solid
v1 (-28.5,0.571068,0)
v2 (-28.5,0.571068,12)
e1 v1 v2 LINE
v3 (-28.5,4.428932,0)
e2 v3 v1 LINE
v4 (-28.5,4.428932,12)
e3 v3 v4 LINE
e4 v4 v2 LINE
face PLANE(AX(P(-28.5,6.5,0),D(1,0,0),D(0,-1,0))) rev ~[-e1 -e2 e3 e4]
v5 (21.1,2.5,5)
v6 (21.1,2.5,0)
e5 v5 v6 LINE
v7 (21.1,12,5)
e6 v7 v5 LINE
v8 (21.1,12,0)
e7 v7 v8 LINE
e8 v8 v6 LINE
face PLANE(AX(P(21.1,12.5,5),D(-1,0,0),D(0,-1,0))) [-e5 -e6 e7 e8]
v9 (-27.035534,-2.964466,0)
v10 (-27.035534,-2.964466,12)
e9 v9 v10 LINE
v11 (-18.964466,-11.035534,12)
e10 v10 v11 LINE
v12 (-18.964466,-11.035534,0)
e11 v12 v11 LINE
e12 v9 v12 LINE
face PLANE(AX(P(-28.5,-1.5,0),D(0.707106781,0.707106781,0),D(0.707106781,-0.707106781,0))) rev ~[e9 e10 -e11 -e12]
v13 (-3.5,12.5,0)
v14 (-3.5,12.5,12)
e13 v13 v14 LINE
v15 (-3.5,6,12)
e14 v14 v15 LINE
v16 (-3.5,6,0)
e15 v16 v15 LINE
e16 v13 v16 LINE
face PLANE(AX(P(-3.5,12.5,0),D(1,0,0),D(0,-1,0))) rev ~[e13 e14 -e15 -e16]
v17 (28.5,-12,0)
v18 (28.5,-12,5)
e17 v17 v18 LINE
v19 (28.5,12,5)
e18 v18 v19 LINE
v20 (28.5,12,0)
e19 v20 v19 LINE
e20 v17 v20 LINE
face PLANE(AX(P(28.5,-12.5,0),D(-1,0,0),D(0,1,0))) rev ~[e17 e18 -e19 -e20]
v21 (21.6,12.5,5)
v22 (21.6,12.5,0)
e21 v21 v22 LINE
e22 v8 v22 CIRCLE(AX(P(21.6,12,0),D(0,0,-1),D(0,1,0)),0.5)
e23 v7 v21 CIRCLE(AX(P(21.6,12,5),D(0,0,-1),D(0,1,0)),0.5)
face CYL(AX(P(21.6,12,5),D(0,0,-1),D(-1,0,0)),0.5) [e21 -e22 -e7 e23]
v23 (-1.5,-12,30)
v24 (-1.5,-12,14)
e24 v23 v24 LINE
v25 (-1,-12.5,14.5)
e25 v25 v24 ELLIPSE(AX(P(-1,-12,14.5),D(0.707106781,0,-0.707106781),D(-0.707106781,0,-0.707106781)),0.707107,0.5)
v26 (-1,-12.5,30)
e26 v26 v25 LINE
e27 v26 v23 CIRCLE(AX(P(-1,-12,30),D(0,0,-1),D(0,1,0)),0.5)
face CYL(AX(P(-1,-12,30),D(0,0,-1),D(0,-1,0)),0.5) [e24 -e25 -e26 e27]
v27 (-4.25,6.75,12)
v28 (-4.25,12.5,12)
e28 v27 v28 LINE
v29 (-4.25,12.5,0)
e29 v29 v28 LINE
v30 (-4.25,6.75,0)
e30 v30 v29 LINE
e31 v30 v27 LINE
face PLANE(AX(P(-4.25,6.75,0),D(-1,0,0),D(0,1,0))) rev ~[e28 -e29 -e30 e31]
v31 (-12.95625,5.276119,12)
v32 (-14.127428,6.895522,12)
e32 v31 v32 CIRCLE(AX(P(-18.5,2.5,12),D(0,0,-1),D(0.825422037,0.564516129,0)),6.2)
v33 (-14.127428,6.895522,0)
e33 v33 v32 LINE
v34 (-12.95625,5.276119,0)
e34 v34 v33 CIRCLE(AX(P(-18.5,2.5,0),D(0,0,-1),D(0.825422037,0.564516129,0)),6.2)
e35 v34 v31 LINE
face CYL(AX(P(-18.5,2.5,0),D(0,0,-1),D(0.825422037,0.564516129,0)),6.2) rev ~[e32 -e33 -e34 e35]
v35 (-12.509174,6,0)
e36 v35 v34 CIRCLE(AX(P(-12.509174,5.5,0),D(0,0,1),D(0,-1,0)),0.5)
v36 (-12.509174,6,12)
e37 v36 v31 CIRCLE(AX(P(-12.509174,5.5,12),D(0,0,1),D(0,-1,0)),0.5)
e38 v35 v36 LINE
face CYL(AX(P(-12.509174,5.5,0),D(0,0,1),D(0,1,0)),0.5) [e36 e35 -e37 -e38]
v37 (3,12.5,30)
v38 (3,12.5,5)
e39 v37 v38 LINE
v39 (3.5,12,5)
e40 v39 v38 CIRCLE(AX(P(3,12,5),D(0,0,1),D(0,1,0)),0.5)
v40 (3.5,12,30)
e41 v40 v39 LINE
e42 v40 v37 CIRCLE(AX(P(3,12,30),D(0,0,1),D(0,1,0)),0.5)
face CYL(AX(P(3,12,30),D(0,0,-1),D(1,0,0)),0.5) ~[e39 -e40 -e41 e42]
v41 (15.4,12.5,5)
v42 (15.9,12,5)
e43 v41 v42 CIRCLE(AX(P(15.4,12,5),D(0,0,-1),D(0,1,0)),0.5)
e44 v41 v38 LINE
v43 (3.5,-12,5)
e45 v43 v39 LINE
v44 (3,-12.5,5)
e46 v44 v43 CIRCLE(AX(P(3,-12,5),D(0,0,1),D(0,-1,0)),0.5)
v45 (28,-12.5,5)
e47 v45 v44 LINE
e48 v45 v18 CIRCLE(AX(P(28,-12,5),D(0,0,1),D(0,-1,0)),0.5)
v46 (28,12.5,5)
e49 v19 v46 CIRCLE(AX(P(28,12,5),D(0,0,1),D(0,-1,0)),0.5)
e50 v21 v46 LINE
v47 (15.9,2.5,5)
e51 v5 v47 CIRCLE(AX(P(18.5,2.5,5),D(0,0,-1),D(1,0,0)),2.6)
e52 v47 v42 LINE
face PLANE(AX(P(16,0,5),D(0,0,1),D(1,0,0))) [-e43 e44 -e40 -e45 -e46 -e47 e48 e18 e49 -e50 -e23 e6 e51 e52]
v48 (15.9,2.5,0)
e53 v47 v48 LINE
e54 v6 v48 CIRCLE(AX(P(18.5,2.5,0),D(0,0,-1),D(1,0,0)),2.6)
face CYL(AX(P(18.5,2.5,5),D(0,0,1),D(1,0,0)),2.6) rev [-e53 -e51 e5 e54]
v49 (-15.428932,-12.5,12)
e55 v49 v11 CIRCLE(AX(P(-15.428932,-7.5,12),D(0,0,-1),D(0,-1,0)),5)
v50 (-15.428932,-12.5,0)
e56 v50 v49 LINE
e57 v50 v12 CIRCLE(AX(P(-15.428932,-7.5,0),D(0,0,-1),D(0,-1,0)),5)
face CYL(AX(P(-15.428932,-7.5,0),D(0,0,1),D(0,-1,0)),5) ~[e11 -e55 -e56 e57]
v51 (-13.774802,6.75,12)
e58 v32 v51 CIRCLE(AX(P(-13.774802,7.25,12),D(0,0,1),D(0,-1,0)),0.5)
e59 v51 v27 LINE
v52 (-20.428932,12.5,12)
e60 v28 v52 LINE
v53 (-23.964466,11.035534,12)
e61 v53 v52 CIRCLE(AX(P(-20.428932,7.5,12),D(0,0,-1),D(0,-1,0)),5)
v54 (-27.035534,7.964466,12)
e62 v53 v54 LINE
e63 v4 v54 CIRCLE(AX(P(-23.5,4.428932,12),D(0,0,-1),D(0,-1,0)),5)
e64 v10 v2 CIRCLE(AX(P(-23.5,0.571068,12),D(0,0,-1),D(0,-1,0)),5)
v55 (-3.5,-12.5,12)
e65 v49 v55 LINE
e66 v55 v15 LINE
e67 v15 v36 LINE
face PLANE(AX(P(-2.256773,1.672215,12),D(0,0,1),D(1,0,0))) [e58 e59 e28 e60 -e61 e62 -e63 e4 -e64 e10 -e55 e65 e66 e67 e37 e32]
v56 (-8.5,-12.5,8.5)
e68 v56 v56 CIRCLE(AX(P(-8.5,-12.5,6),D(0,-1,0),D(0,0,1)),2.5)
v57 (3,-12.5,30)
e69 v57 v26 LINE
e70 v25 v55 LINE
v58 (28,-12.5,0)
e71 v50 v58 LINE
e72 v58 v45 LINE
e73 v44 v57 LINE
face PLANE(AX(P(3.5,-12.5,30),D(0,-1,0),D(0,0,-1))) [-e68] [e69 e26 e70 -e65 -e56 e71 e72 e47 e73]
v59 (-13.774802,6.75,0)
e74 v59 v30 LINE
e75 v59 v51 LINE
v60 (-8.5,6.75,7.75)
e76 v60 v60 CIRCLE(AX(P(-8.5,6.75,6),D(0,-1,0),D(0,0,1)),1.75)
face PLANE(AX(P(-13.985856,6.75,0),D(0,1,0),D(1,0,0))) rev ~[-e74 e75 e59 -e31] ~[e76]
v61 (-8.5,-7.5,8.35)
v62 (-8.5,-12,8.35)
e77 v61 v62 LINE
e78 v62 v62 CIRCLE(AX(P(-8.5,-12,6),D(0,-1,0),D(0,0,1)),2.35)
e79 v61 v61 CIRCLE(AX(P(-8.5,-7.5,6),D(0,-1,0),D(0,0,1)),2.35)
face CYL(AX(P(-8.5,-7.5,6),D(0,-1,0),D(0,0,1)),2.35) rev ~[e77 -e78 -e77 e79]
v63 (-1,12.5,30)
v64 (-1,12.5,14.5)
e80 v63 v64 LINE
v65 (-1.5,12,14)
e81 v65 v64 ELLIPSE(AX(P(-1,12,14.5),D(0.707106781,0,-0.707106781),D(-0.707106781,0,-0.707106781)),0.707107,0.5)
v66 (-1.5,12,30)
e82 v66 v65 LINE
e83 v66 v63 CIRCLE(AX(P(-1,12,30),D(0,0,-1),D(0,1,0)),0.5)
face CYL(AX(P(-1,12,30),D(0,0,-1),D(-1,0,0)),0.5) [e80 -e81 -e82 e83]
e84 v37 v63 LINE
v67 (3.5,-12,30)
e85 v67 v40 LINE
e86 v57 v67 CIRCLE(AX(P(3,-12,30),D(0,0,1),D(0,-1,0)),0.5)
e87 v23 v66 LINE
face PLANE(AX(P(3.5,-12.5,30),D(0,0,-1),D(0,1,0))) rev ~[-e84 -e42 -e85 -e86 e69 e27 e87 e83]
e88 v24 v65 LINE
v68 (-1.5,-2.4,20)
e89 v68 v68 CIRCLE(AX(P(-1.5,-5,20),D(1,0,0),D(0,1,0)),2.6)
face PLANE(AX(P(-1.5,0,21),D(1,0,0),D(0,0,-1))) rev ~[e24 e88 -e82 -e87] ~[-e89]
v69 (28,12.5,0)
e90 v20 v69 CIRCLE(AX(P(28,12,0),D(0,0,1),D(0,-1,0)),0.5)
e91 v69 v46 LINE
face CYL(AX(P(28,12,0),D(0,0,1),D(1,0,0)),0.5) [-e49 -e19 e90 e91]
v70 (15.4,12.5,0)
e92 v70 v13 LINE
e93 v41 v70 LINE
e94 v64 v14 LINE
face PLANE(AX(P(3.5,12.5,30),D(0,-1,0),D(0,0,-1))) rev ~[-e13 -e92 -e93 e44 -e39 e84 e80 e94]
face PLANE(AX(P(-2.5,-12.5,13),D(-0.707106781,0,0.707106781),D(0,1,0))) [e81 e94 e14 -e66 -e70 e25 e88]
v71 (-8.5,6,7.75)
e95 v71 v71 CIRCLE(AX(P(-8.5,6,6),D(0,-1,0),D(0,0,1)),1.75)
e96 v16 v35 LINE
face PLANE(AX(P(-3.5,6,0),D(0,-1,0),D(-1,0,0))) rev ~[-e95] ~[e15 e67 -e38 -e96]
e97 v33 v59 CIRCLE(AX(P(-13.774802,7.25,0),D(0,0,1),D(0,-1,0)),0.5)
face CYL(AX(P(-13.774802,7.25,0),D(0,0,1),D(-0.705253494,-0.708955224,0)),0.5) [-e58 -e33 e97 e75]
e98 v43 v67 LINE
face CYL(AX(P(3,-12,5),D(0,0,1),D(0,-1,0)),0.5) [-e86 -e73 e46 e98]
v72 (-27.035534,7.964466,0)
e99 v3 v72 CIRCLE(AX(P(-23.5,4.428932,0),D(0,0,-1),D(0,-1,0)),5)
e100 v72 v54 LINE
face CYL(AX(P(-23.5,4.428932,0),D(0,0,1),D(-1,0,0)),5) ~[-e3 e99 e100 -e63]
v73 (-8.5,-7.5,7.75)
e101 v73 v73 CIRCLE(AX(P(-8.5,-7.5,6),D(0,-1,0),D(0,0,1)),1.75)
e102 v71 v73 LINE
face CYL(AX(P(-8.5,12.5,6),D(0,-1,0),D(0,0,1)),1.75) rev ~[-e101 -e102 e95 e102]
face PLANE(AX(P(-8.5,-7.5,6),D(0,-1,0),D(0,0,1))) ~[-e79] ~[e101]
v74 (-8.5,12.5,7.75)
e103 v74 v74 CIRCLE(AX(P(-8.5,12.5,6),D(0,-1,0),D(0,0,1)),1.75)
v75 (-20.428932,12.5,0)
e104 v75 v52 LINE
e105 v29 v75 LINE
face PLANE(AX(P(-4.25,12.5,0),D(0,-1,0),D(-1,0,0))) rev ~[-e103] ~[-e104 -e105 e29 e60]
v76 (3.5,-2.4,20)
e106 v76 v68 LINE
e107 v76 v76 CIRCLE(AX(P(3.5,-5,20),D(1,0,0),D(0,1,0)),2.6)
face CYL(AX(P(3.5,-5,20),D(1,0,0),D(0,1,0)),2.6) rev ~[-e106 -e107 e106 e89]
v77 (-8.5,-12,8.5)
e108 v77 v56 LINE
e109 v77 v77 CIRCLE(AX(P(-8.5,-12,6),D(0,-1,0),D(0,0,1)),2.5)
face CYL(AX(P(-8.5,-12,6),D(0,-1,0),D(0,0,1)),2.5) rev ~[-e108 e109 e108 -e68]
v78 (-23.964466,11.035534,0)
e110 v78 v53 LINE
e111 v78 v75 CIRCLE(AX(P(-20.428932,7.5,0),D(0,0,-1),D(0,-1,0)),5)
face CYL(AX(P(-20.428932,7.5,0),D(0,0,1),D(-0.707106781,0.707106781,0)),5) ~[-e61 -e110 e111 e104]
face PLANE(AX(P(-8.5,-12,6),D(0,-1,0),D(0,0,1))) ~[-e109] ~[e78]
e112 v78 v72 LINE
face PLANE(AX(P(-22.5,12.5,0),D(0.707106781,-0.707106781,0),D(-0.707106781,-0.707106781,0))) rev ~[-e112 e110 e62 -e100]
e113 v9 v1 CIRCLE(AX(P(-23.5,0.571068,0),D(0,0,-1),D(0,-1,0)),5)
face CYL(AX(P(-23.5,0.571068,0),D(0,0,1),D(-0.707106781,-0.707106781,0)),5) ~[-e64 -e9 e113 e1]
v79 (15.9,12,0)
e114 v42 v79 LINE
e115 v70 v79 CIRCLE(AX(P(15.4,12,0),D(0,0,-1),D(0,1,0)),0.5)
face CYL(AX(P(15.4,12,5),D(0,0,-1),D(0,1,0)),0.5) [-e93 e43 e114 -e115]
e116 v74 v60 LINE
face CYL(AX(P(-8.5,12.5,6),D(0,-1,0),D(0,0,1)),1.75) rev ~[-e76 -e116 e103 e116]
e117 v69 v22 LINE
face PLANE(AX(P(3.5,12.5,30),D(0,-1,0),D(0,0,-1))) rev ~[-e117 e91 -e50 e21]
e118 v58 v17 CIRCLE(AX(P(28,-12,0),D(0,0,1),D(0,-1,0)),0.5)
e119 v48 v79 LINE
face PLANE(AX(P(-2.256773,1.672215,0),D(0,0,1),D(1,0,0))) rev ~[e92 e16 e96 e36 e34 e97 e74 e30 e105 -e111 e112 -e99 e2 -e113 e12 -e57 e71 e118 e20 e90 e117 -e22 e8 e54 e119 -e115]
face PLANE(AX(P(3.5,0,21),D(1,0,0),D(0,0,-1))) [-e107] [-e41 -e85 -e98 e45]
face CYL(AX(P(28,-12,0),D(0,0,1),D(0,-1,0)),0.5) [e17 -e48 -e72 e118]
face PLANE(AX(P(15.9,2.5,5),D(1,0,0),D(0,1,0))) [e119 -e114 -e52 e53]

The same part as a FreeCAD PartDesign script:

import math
import FreeCAD as App
import Part
import Sketcher
from FreeCAD import Vector
Q = App.Units.Quantity


def edges_at(feature, points):
    """Names of the edges that pass closest to the given points."""
    edges = feature.Shape.Edges
    near = lambda p: min(range(len(edges)), key=lambda i: edges[i].distToShape(Part.Vertex(*p))[0])
    return sorted({f"Edge{near(p) + 1}" for p in points})


def add_polygon(sketch, points):
    """Adds a closed chain of lines whose ends are joined by coincident constraints."""
    first, n = sketch.GeometryCount, len(points)
    for a, b in zip(points, points[1:] + points[:1]):
        sketch.addGeometry(Part.LineSegment(App.Vector(*a, 0), App.Vector(*b, 0)), False)
    for i in range(n):
        sketch.addConstraint(Sketcher.Constraint("Coincident", first + i, 2, first + (i + 1) % n, 1))

doc = App.newDocument("Part")
params = doc.addObject("Spreadsheet::Sheet", "Params")
for row, (alias, value) in enumerate([
    ("sketch1_radius", "6.2 mm"),
    ("sketch1_width", "46 mm"),
    ("sketch1_width2", "32 mm"),
    ("sketch1_height", "8 mm"),
    ("sketch1_height2", "25 mm"),
    ("pad1_length", "12 mm"),
    ("sketch2_width", "25 mm"),
    ("pocket1_length", "7 mm"),
    ("sketch3_diameter", "5.2 mm"),
    ("sketch3_width", "25 mm"),
    ("sketch3_height", "18 mm"),
    ("pad2_length", "5 mm"),
    ("chamfer_size", "2 mm"),
    ("sketch4_radius", "2.6 mm"),
    ("sketch4_height", "10 mm"),
    ("pocket2_length", "5 mm"),
    ("fillet_radius", "5 mm"),
    ("fillet2_radius", "0.5 mm"),
    ("sketch5_height", "25 mm"),
    ("sketch5_height2", "20 mm"),
    ("sketch5_width", "2.5 mm"),
    ("sketch5_width2", "0.6 mm"),
    ("sketch5_height3", "0.5 mm"),
    ("groove_angle", "360 deg"),
], start=1):
    params.set(f"A{row}", alias)
    params.set(f"B{row}", "=" + value)
    params.setAlias(f"B{row}", alias)

body = doc.addObject("PartDesign::Body", "Body")

sketch1 = doc.addObject("Sketcher::SketchObject", "Sketch")
body.addObject(sketch1)
sketch1.AttachmentSupport = (doc.XY_Plane, [""])
sketch1.MapMode = "FlatFace"
sketch1.addGeometry([
    Part.LineSegment(Vector(-22.5, 12.5, 0), Vector(-28.5, 6.5, 0)),
    Part.LineSegment(Vector(-28.5, 6.5, 0), Vector(-28.5, -1.5, 0)),
    Part.LineSegment(Vector(-28.5, -1.5, 0), Vector(-17.5, -12.5, 0)),
    Part.LineSegment(Vector(-17.5, -12.5, 0), Vector(28.5, -12.5, 0)),
    Part.LineSegment(Vector(28.5, -12.5, 0), Vector(28.5, 12.5, 0)),
    Part.LineSegment(Vector(28.5, 12.5, 0), Vector(-3.5, 12.5, 0)),
    Part.LineSegment(Vector(-3.5, 12.5, 0), Vector(-3.5, 6, 0)),
    Part.LineSegment(Vector(-3.5, 6, 0), Vector(-13.382383, 6, 0)),
    Part.ArcOfCircle(Part.Circle(Vector(-18.5, 2.5, 0), Vector(0, 0, 1), 6.2), math.radians(43.273673), math.radians(394.368697)),
    Part.LineSegment(Vector(-13.985856, 6.75, 0), Vector(-4.25, 6.75, 0)),
    Part.LineSegment(Vector(-4.25, 6.75, 0), Vector(-4.25, 12.5, 0)),
    Part.LineSegment(Vector(-4.25, 12.5, 0), Vector(-22.5, 12.5, 0)),
], False)
sketch1.addConstraint([
    Sketcher.Constraint("Coincident", 0, 2, 1, 1),
    Sketcher.Constraint("Coincident", 1, 2, 2, 1),
    Sketcher.Constraint("Coincident", 2, 2, 3, 1),
    Sketcher.Constraint("Coincident", 3, 2, 4, 1),
    Sketcher.Constraint("Coincident", 4, 2, 5, 1),
    Sketcher.Constraint("Coincident", 5, 2, 6, 1),
    Sketcher.Constraint("Coincident", 6, 2, 7, 1),
    Sketcher.Constraint("Coincident", 7, 2, 8, 2),
    Sketcher.Constraint("Coincident", 8, 1, 9, 1),
    Sketcher.Constraint("Coincident", 9, 2, 10, 1),
    Sketcher.Constraint("Coincident", 10, 2, 11, 1),
    Sketcher.Constraint("Coincident", 11, 2, 0, 1),
    Sketcher.Constraint("Vertical", 1),
    Sketcher.Constraint("Horizontal", 3),
    Sketcher.Constraint("Vertical", 4),
    Sketcher.Constraint("Horizontal", 5),
    Sketcher.Constraint("Vertical", 6),
    Sketcher.Constraint("Horizontal", 7),
    Sketcher.Constraint("Horizontal", 9),
    Sketcher.Constraint("Vertical", 10),
    Sketcher.Constraint("Horizontal", 11),
    Sketcher.Constraint("Perpendicular", 0, 2),
    Sketcher.Constraint("Horizontal", 5, 2, 10, 2),
    Sketcher.Constraint("Radius", 8, Q("6.2 mm")),
    Sketcher.Constraint("DistanceX", 3, 1, 3, 2, Q("46 mm")),
    Sketcher.Constraint("DistanceX", 5, 2, 5, 1, Q("32 mm")),
    Sketcher.Constraint("DistanceY", 1, 2, 1, 1, Q("8 mm")),
    Sketcher.Constraint("DistanceY", 4, 1, 4, 2, Q("25 mm")),
    Sketcher.Constraint("Angle", 0, Q("-135 deg")),
    Sketcher.Constraint("DistanceY", 6, 2, 6, 1, Q("6.5 mm")),
    Sketcher.Constraint("DistanceY", -1, 1, 6, 2, Q("6 mm")),
    Sketcher.Constraint("DistanceX", 0, 2, 8, 3, Q("10 mm")),
    Sketcher.Constraint("DistanceY", 8, 3, 0, 2, Q("4 mm")),
    Sketcher.Constraint("DistanceX", 8, 3, 2, 2, Q("1 mm")),
    Sketcher.Constraint("DistanceX", 11, 2, 11, 1, Q("18.25 mm")),
    Sketcher.Constraint("DistanceY", 10, 1, 10, 2, Q("5.75 mm")),
    Sketcher.Constraint("DistanceX", 8, 3, -1, 1, Q("18.5 mm")),
])
sketch1.setExpression("Constraints[23]", "Params.sketch1_radius")
sketch1.setExpression("Constraints[24]", "Params.sketch1_width")
sketch1.setExpression("Constraints[25]", "Params.sketch1_width2")
sketch1.setExpression("Constraints[26]", "Params.sketch1_height")
sketch1.setExpression("Constraints[27]", "Params.sketch1_height2")
pad1 = doc.addObject("PartDesign::Pad", "Pad")
body.addObject(pad1)
pad1.Profile = sketch1
pad1.setExpression("Length", "Params.pad1_length")

sketch2 = doc.addObject("Sketcher::SketchObject", "Sketch001")
body.addObject(sketch2)
sketch2.AttachmentSupport = (doc.XY_Plane, [""])
sketch2.MapMode = "FlatFace"
sketch2.AttachmentOffset = App.Placement(Vector(0, 0, 12), App.Rotation())
add_polygon(sketch2, [(3.5, 12.5), (3.5, -12.5), (28.5, -12.5), (28.5, 12.5)])
sketch2.addConstraint([
    Sketcher.Constraint("Vertical", 0),
    Sketcher.Constraint("Horizontal", 1),
    Sketcher.Constraint("Vertical", 2),
    Sketcher.Constraint("Horizontal", 3),
    Sketcher.Constraint("Equal", 3, 0),
    Sketcher.Constraint("DistanceX", 1, 1, 1, 2, Q("25 mm")),
    Sketcher.Constraint("DistanceX", -1, 1, 0, 2, Q("3.5 mm")),
    Sketcher.Constraint("DistanceY", 0, 2, -1, 1, Q("12.5 mm")),
])
sketch2.setExpression("Constraints[9]", "Params.sketch2_width")
pocket1 = doc.addObject("PartDesign::Pocket", "Pocket")
body.addObject(pocket1)
pocket1.Profile = sketch2
pocket1.setExpression("Length", "Params.pocket1_length")

sketch3 = doc.addObject("Sketcher::SketchObject", "Sketch002")
body.addObject(sketch3)
sketch3.AttachmentSupport = (doc.YZ_Plane, [""])
sketch3.MapMode = "FlatFace"
sketch3.AttachmentOffset = App.Placement(Vector(0, 0, 3.5), App.Rotation())
add_polygon(sketch3, [(12.5, 30), (-12.5, 30), (-12.5, 12), (12.5, 12)])
sketch3.addGeometry(Part.Circle(Vector(-5, 20, 0), Vector(0, 0, 1), 2.6), False)
sketch3.addConstraint([
    Sketcher.Constraint("Horizontal", 0),
    Sketcher.Constraint("Vertical", 1),
    Sketcher.Constraint("Horizontal", 2),
    Sketcher.Constraint("Vertical", 3),
    Sketcher.Constraint("Diameter", 4, Q("5.2 mm")),
    Sketcher.Constraint("DistanceX", 0, 2, 0, 1, Q("25 mm")),
    Sketcher.Constraint("DistanceY", 1, 2, 1, 1, Q("18 mm")),
    Sketcher.Constraint("DistanceX", 4, 3, -1, 1, Q("5 mm")),
    Sketcher.Constraint("DistanceY", -1, 1, 4, 3, Q("20 mm")),
    Sketcher.Constraint("DistanceY", -1, 1, 0, 2, Q("30 mm")),
    Sketcher.Constraint("DistanceX", 0, 2, -1, 1, Q("12.5 mm")),
])
sketch3.setExpression("Constraints[8]", "Params.sketch3_diameter")
sketch3.setExpression("Constraints[9]", "Params.sketch3_width")
sketch3.setExpression("Constraints[10]", "Params.sketch3_height")
pad2 = doc.addObject("PartDesign::Pad", "Pad001")
body.addObject(pad2)
pad2.Profile = sketch3
pad2.setExpression("Length", "Params.pad2_length")
pad2.Reversed = True
doc.recompute()

chamfer = doc.addObject("PartDesign::Chamfer", "Chamfer")
body.addObject(chamfer)
chamfer.Base = (pad2, edges_at(pad2, [(-1.5, 0, 12)]))
chamfer.setExpression("Size", "Params.chamfer_size")

sketch4 = doc.addObject("Sketcher::SketchObject", "Sketch003")
body.addObject(sketch4)
sketch4.AttachmentSupport = (doc.XY_Plane, [""])
sketch4.MapMode = "FlatFace"
sketch4.AttachmentOffset = App.Placement(Vector(0, 0, 5), App.Rotation())
sketch4.addGeometry([
    Part.LineSegment(Vector(15.9, 12.5, 0), Vector(15.9, 2.5, 0)),
    Part.ArcOfCircle(Part.Circle(Vector(18.5, 2.5, 0), Vector(0, 0, 1), 2.6), math.radians(180), math.radians(360)),
    Part.LineSegment(Vector(21.1, 2.5, 0), Vector(21.1, 12.5, 0)),
    Part.LineSegment(Vector(21.1, 12.5, 0), Vector(15.9, 12.5, 0)),
], False)
sketch4.addConstraint([
    Sketcher.Constraint("Tangent", 0, 2, 1, 1),
    Sketcher.Constraint("Tangent", 1, 2, 2, 1),
    Sketcher.Constraint("Coincident", 2, 2, 3, 1),
    Sketcher.Constraint("Coincident", 3, 2, 0, 1),
    Sketcher.Constraint("Vertical", 0),
    Sketcher.Constraint("Vertical", 2),
    Sketcher.Constraint("Horizontal", 3),
    Sketcher.Constraint("Radius", 1, Q("2.6 mm")),
    Sketcher.Constraint("DistanceY", 0, 2, 0, 1, Q("10 mm")),
    Sketcher.Constraint("DistanceX", -1, 1, 1, 3, Q("18.5 mm")),
    Sketcher.Constraint("DistanceY", -1, 1, 1, 3, Q("2.5 mm")),
])
sketch4.setExpression("Constraints[7]", "Params.sketch4_radius")
sketch4.setExpression("Constraints[8]", "Params.sketch4_height")
pocket2 = doc.addObject("PartDesign::Pocket", "Pocket001")
body.addObject(pocket2)
pocket2.Profile = sketch4
pocket2.setExpression("Length", "Params.pocket2_length")
doc.recompute()

fillet = doc.addObject("PartDesign::Fillet", "Fillet")
body.addObject(fillet)
fillet.Base = (pocket2, edges_at(pocket2, [
    (-17.5, -12.5, 6),
    (-28.5, -1.5, 6),
    (-28.5, 6.5, 6),
    (-22.5, 12.5, 6),
]))
fillet.setExpression("Radius", "Params.fillet_radius")
doc.recompute()

fillet2 = doc.addObject("PartDesign::Fillet", "Fillet001")
body.addObject(fillet2)
fillet2.Base = (fillet, edges_at(fillet, [
    (-13.986, 6.75, 6),
    (-13.382, 6, 6),
    (28.5, 12.5, 2.5),
    (28.5, -12.5, 2.5),
    (3.5, -12.5, 17.5),
    (3.5, 12.5, 17.5),
    (-1.5, -12.5, 22),
    (-1.5, 12.5, 22),
    (15.9, 12.5, 2.5),
    (21.1, 12.5, 2.5),
]))
fillet2.setExpression("Radius", "Params.fillet2_radius")

sketch5 = doc.addObject("Sketcher::SketchObject", "Sketch004")
body.addObject(sketch5)
sketch5.AttachmentSupport = (doc.XY_Plane, [""])
sketch5.MapMode = "FlatFace"
sketch5.AttachmentOffset = App.Placement(Vector(0, 0, 6), App.Rotation())
add_polygon(sketch5, [(-10.25, 12.5), (-8.5, 12.5), (-8.5, -12.5), (-11, -12.5), (-11, -12), (-10.85, -12), (-10.85, -7.5), (-10.25, -7.5)])
sketch5.addGeometry(Part.LineSegment(Vector(-8.5, 12.5, 0), Vector(-8.5, -12.5, 0)), True)
sketch5.addConstraint([
    Sketcher.Constraint("Horizontal", 0),
    Sketcher.Constraint("Vertical", 1),
    Sketcher.Constraint("Horizontal", 2),
    Sketcher.Constraint("Vertical", 3),
    Sketcher.Constraint("Horizontal", 4),
    Sketcher.Constraint("Vertical", 5),
    Sketcher.Constraint("Horizontal", 6),
    Sketcher.Constraint("Vertical", 7),
    Sketcher.Constraint("Vertical", 8),
    Sketcher.Constraint("Coincident", 8, 1, 0, 2),
    Sketcher.Constraint("Horizontal", 2, 2, 8, 2),
    Sketcher.Constraint("DistanceY", 1, 2, 1, 1, Q("25 mm")),
    Sketcher.Constraint("DistanceY", 7, 1, 7, 2, Q("20 mm")),
    Sketcher.Constraint("DistanceX", 2, 2, 2, 1, Q("2.5 mm")),
    Sketcher.Constraint("DistanceX", 6, 1, 6, 2, Q("0.6 mm")),
    Sketcher.Constraint("DistanceY", 3, 1, 3, 2, Q("0.5 mm")),
    Sketcher.Constraint("DistanceX", 2, 2, -1, 1, Q("11 mm")),
    Sketcher.Constraint("DistanceY", 3, 2, -1, 1, Q("12 mm")),
    Sketcher.Constraint("DistanceX", 0, 1, 0, 2, Q("1.75 mm")),
])
sketch5.setExpression("Constraints[19]", "Params.sketch5_height")
sketch5.setExpression("Constraints[20]", "Params.sketch5_height2")
sketch5.setExpression("Constraints[21]", "Params.sketch5_width")
sketch5.setExpression("Constraints[22]", "Params.sketch5_width2")
sketch5.setExpression("Constraints[23]", "Params.sketch5_height3")
groove = doc.addObject("PartDesign::Groove", "Groove")
body.addObject(groove)
groove.Profile = sketch5
groove.ReferenceAxis = (sketch5, ["Axis0"])
groove.setExpression("Angle", "Params.groove_angle")

doc.recompute()
